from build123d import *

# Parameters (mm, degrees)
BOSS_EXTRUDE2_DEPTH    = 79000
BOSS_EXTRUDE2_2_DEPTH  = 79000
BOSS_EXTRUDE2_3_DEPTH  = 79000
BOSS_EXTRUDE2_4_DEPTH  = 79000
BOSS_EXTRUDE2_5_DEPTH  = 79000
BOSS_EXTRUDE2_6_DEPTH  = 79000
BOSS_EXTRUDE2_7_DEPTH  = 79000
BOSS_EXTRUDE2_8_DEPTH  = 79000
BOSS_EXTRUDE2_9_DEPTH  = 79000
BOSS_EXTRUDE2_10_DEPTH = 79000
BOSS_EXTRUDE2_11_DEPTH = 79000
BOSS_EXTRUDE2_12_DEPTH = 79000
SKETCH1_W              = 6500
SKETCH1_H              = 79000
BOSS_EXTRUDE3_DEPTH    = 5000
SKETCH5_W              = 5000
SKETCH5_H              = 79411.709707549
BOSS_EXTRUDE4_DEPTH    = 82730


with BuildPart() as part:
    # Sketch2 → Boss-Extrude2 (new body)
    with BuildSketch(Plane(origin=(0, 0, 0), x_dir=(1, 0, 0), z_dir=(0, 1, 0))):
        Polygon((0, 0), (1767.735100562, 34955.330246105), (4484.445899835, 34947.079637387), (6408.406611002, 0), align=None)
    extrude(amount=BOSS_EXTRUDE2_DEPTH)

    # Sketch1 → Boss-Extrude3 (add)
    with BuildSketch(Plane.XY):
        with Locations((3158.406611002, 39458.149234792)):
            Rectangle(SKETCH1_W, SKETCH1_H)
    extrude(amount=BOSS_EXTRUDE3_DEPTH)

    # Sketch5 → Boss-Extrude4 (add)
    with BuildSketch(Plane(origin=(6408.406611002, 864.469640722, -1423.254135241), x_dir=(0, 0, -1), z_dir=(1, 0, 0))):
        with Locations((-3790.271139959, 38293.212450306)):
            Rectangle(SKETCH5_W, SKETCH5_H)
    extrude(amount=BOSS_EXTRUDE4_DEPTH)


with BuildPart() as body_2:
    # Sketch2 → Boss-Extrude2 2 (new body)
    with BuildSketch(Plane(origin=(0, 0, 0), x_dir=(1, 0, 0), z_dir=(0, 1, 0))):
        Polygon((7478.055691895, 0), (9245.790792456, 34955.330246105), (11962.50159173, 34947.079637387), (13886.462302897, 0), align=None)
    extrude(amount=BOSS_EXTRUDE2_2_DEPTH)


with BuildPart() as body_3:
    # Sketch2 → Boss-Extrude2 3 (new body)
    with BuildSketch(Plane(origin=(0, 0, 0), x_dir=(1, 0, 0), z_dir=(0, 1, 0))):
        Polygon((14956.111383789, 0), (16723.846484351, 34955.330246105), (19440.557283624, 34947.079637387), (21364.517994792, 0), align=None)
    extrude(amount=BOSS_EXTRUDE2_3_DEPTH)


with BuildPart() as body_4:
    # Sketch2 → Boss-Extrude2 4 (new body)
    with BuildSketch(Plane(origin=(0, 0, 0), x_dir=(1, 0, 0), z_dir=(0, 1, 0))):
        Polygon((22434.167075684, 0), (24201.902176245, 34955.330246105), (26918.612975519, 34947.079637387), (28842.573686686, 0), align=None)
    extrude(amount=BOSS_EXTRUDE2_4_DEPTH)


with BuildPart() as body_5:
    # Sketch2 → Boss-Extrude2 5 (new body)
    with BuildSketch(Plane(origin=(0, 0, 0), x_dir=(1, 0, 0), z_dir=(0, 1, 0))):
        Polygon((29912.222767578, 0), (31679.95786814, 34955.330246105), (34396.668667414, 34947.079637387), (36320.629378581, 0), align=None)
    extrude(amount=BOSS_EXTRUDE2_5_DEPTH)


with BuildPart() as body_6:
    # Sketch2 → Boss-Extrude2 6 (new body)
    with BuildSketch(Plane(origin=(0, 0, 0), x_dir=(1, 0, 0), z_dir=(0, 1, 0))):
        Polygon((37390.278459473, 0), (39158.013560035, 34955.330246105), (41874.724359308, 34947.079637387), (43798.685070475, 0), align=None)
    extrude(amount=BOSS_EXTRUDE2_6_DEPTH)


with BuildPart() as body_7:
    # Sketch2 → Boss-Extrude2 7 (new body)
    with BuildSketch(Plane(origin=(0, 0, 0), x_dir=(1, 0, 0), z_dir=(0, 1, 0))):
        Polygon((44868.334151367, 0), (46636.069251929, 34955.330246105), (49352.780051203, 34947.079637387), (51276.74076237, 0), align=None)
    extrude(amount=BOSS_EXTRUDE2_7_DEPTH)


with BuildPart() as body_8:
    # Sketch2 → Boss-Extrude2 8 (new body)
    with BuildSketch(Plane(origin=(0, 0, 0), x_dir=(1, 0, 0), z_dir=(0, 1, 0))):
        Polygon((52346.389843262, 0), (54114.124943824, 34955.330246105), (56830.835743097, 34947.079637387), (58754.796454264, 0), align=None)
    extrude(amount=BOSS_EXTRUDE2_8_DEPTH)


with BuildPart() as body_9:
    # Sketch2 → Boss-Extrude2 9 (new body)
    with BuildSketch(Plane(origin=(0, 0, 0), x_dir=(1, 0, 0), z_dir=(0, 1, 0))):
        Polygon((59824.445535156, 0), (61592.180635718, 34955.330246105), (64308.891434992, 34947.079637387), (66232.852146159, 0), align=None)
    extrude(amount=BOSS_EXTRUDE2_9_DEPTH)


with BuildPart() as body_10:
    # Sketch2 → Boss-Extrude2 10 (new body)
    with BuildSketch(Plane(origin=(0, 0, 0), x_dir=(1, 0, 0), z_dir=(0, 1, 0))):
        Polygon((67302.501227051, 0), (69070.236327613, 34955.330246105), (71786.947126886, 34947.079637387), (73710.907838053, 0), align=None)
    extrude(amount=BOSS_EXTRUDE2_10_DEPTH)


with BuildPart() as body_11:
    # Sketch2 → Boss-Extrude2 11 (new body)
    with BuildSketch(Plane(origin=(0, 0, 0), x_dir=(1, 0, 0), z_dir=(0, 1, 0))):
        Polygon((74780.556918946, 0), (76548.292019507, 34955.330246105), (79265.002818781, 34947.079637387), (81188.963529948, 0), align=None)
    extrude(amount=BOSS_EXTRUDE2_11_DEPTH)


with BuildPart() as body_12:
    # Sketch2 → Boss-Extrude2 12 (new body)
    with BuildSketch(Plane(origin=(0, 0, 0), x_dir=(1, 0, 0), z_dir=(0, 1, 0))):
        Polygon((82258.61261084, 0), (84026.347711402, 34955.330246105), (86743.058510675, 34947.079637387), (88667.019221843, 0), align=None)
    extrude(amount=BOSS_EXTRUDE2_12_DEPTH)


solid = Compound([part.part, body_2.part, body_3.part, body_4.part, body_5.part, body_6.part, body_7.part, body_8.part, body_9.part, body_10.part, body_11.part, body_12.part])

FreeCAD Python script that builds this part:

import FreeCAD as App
import Part
import Sketcher

doc = App.newDocument("Part")
body = doc.addObject("PartDesign::Body", "Body")

sketch1 = body.newObject("Sketcher::SketchObject", "Sketch")
sketch1.AttachmentSupport = (doc.getObject("XZ_Plane"), [""])
sketch1.MapMode = "FlatFace"
sketch1.addGeometry([
    Part.LineSegment(App.Vector(1768, -34955, 0), App.Vector(0, 0, 0)),
    Part.LineSegment(App.Vector(0, 0, 0), App.Vector(6408, 0, 0)),
    Part.LineSegment(App.Vector(6408, 0, 0), App.Vector(4484, -34947, 0)),
    Part.LineSegment(App.Vector(4484, -34947, 0), App.Vector(1768, -34955, 0)),
], False)
sketch1.addConstraint([
    Sketcher.Constraint("Coincident", 0, 2, 1, 1),
    Sketcher.Constraint("Coincident", 1, 2, 2, 1),
    Sketcher.Constraint("Coincident", 2, 2, 3, 1),
    Sketcher.Constraint("Coincident", 3, 2, 0, 1),
    Sketcher.Constraint("Horizontal", 1),
    Sketcher.Constraint("Coincident", 0, 2, -1, 1),
    Sketcher.Constraint("Equal", 0, 2),
    Sketcher.Constraint("Distance", 0, 35000.0),
    Sketcher.Constraint("DistanceX", 1, 1, 1, 2, 6408.406611),
    Sketcher.Constraint("DistanceX", -1, 1, 2, 2, 4484.4459),
    Sketcher.Constraint("DistanceX", -1, 1, 3, 2, 1767.735101),
])
pad1 = body.newObject("PartDesign::Pad", "Pad")
pad1.Profile = sketch1
pad1.Length = 79000
pad1.Reversed = True

sketch2 = body.newObject("Sketcher::SketchObject", "Sketch001")
sketch2.AttachmentSupport = (doc.getObject("XY_Plane"), [""])
sketch2.MapMode = "FlatFace"
sketch2.addGeometry([
    Part.LineSegment(App.Vector(-92, 78958, 0), App.Vector(-92, -42, 0)),
    Part.LineSegment(App.Vector(-92, -42, 0), App.Vector(6408, -42, 0)),
    Part.LineSegment(App.Vector(6408, -42, 0), App.Vector(6408, 78958, 0)),
    Part.LineSegment(App.Vector(6408, 78958, 0), App.Vector(-92, 78958, 0)),
], False)
sketch2.addConstraint([
    Sketcher.Constraint("Coincident", 0, 2, 1, 1),
    Sketcher.Constraint("Coincident", 1, 2, 2, 1),
    Sketcher.Constraint("Coincident", 2, 2, 3, 1),
    Sketcher.Constraint("Coincident", 3, 2, 0, 1),
    Sketcher.Constraint("Vertical", 0),
    Sketcher.Constraint("Horizontal", 1),
    Sketcher.Constraint("Vertical", 2),
    Sketcher.Constraint("Horizontal", 3),
    Sketcher.Constraint("DistanceX", 1, 1, 1, 2, 6500.0),
    Sketcher.Constraint("DistanceY", 0, 2, 0, 1, 79000.0),
    Sketcher.Constraint("DistanceX", 0, 2, -1, 1, 91.593389),
    Sketcher.Constraint("DistanceY", 0, 2, -1, 1, 41.850765),
])
pad2 = body.newObject("PartDesign::Pad", "Pad001")
pad2.Profile = sketch2
pad2.Length = 5000

sketch3 = body.newObject("Sketcher::SketchObject", "Sketch002")
sketch3.AttachmentSupport = (doc.getObject("YZ_Plane"), [""])
sketch3.MapMode = "FlatFace"
sketch3.AttachmentOffset = App.Placement(App.Vector(0, 0, 6408.406611), App.Rotation())
sketch3.addGeometry([
    Part.LineSegment(App.Vector(78864, 4867, 0), App.Vector(-548, 4867, 0)),
    Part.LineSegment(App.Vector(-548, 4867, 0), App.Vector(-548, -133, 0)),
    Part.LineSegment(App.Vector(-548, -133, 0), App.Vector(78864, -133, 0)),
    Part.LineSegment(App.Vector(78864, -133, 0), App.Vector(78864, 4867, 0)),
], False)
sketch3.addConstraint([
    Sketcher.Constraint("Coincident", 0, 2, 1, 1),
    Sketcher.Constraint("Coincident", 1, 2, 2, 1),
    Sketcher.Constraint("Coincident", 2, 2, 3, 1),
    Sketcher.Constraint("Coincident", 3, 2, 0, 1),
    Sketcher.Constraint("Horizontal", 0),
    Sketcher.Constraint("Vertical", 1),
    Sketcher.Constraint("Horizontal", 2),
    Sketcher.Constraint("Vertical", 3),
    Sketcher.Constraint("DistanceY", 1, 2, 1, 1, 5000.0),
    Sketcher.Constraint("DistanceX", 0, 2, 0, 1, 79411.709708),
    Sketcher.Constraint("DistanceX", 0, 2, -1, 1, 548.172763),
    Sketcher.Constraint("DistanceY", -1, 1, 0, 2, 4867.017005),
])
pad3 = body.newObject("PartDesign::Pad", "Pad002")
pad3.Profile = sketch3
pad3.Length = 82730
body2 = doc.addObject("PartDesign::Body", "Body001")

sketch4 = body2.newObject("Sketcher::SketchObject", "Sketch003")
sketch4.AttachmentSupport = (doc.getObject("XZ_Plane001"), [""])
sketch4.MapMode = "FlatFace"
sketch4.addGeometry([
    Part.LineSegment(App.Vector(9246, -34955, 0), App.Vector(7478, 0, 0)),
    Part.LineSegment(App.Vector(7478, 0, 0), App.Vector(13886, 0, 0)),
    Part.LineSegment(App.Vector(13886, 0, 0), App.Vector(11963, -34947, 0)),
    Part.LineSegment(App.Vector(11963, -34947, 0), App.Vector(9246, -34955, 0)),
], False)
sketch4.addConstraint([
    Sketcher.Constraint("Coincident", 0, 2, 1, 1),
    Sketcher.Constraint("Coincident", 1, 2, 2, 1),
    Sketcher.Constraint("Coincident", 2, 2, 3, 1),
    Sketcher.Constraint("Coincident", 3, 2, 0, 1),
    Sketcher.Constraint("Horizontal", 1),
    Sketcher.Constraint("PointOnObject", 0, 2, -1),
    Sketcher.Constraint("Equal", 0, 2),
    Sketcher.Constraint("Distance", 0, 35000.0),
    Sketcher.Constraint("DistanceX", 1, 1, 1, 2, 6408.406611),
    Sketcher.Constraint("DistanceX", 0, 2, 2, 2, 4484.4459),
    Sketcher.Constraint("DistanceX", 3, 2, 2, 2, 2716.710799),
    Sketcher.Constraint("DistanceX", -1, 1, 0, 2, 7478.055692),
])
pad4 = body2.newObject("PartDesign::Pad", "Pad003")
pad4.Profile = sketch4
pad4.Length = 79000
pad4.Reversed = True
body3 = doc.addObject("PartDesign::Body", "Body002")

sketch5 = body3.newObject("Sketcher::SketchObject", "Sketch004")
sketch5.AttachmentSupport = (doc.getObject("XZ_Plane002"), [""])
sketch5.MapMode = "FlatFace"
sketch5.addGeometry([
    Part.LineSegment(App.Vector(16724, -34955, 0), App.Vector(14956, 0, 0)),
    Part.LineSegment(App.Vector(14956, 0, 0), App.Vector(21365, 0, 0)),
    Part.LineSegment(App.Vector(21365, 0, 0), App.Vector(19441, -34947, 0)),
    Part.LineSegment(App.Vector(19441, -34947, 0), App.Vector(16724, -34955, 0)),
], False)
sketch5.addConstraint([
    Sketcher.Constraint("Coincident", 0, 2, 1, 1),
    Sketcher.Constraint("Coincident", 1, 2, 2, 1),
    Sketcher.Constraint("Coincident", 2, 2, 3, 1),
    Sketcher.Constraint("Coincident", 3, 2, 0, 1),
    Sketcher.Constraint("Horizontal", 1),
    Sketcher.Constraint("PointOnObject", 0, 2, -1),
    Sketcher.Constraint("Equal", 0, 2),
    Sketcher.Constraint("Distance", 0, 35000.0),
    Sketcher.Constraint("DistanceX", 1, 1, 1, 2, 6408.406611),
    Sketcher.Constraint("DistanceX", 0, 2, 2, 2, 4484.4459),
    Sketcher.Constraint("DistanceX", 3, 2, 2, 2, 2716.710799),
    Sketcher.Constraint("DistanceX", -1, 1, 0, 2, 14956.111384),
])
pad5 = body3.newObject("PartDesign::Pad", "Pad004")
pad5.Profile = sketch5
pad5.Length = 79000
pad5.Reversed = True
body4 = doc.addObject("PartDesign::Body", "Body003")

sketch6 = body4.newObject("Sketcher::SketchObject", "Sketch005")
sketch6.AttachmentSupport = (doc.getObject("XZ_Plane003"), [""])
sketch6.MapMode = "FlatFace"
sketch6.addGeometry([
    Part.LineSegment(App.Vector(24202, -34955, 0), App.Vector(22434, 0, 0)),
    Part.LineSegment(App.Vector(22434, 0, 0), App.Vector(28843, 0, 0)),
    Part.LineSegment(App.Vector(28843, 0, 0), App.Vector(26919, -34947, 0)),
    Part.LineSegment(App.Vector(26919, -34947, 0), App.Vector(24202, -34955, 0)),
], False)
sketch6.addConstraint([
    Sketcher.Constraint("Coincident", 0, 2, 1, 1),
    Sketcher.Constraint("Coincident", 1, 2, 2, 1),
    Sketcher.Constraint("Coincident", 2, 2, 3, 1),
    Sketcher.Constraint("Coincident", 3, 2, 0, 1),
    Sketcher.Constraint("Horizontal", 1),
    Sketcher.Constraint("PointOnObject", 0, 2, -1),
    Sketcher.Constraint("Equal", 0, 2),
    Sketcher.Constraint("Distance", 0, 35000.0),
    Sketcher.Constraint("DistanceX", 1, 1, 1, 2, 6408.406611),
    Sketcher.Constraint("DistanceX", 0, 2, 2, 2, 4484.4459),
    Sketcher.Constraint("DistanceX", 3, 2, 2, 2, 2716.710799),
    Sketcher.Constraint("DistanceX", -1, 1, 0, 2, 22434.167076),
])
pad6 = body4.newObject("PartDesign::Pad", "Pad005")
pad6.Profile = sketch6
pad6.Length = 79000
pad6.Reversed = True
body5 = doc.addObject("PartDesign::Body", "Body004")

sketch7 = body5.newObject("Sketcher::SketchObject", "Sketch006")
sketch7.AttachmentSupport = (doc.getObject("XZ_Plane004"), [""])
sketch7.MapMode = "FlatFace"
sketch7.addGeometry([
    Part.LineSegment(App.Vector(31680, -34955, 0), App.Vector(29912, 0, 0)),
    Part.LineSegment(App.Vector(29912, 0, 0), App.Vector(36321, 0, 0)),
    Part.LineSegment(App.Vector(36321, 0, 0), App.Vector(34397, -34947, 0)),
    Part.LineSegment(App.Vector(34397, -34947, 0), App.Vector(31680, -34955, 0)),
], False)
sketch7.addConstraint([
    Sketcher.Constraint("Coincident", 0, 2, 1, 1),
    Sketcher.Constraint("Coincident", 1, 2, 2, 1),
    Sketcher.Constraint("Coincident", 2, 2, 3, 1),
    Sketcher.Constraint("Coincident", 3, 2, 0, 1),
    Sketcher.Constraint("Horizontal", 1),
    Sketcher.Constraint("PointOnObject", 0, 2, -1),
    Sketcher.Constraint("Equal", 0, 2),
    Sketcher.Constraint("Distance", 0, 35000.0),
    Sketcher.Constraint("DistanceX", 1, 1, 1, 2, 6408.406611),
    Sketcher.Constraint("DistanceX", 0, 2, 2, 2, 4484.4459),
    Sketcher.Constraint("DistanceX", 3, 2, 2, 2, 2716.710799),
    Sketcher.Constraint("DistanceX", -1, 1, 1, 2, 36320.629379),
])
pad7 = body5.newObject("PartDesign::Pad", "Pad006")
pad7.Profile = sketch7
pad7.Length = 79000
pad7.Reversed = True
body6 = doc.addObject("PartDesign::Body", "Body005")

sketch8 = body6.newObject("Sketcher::SketchObject", "Sketch007")
sketch8.AttachmentSupport = (doc.getObject("XZ_Plane005"), [""])
sketch8.MapMode = "FlatFace"
sketch8.addGeometry([
    Part.LineSegment(App.Vector(39158, -34955, 0), App.Vector(37390, 0, 0)),
    Part.LineSegment(App.Vector(37390, 0, 0), App.Vector(43799, 0, 0)),
    Part.LineSegment(App.Vector(43799, 0, 0), App.Vector(41875, -34947, 0)),
    Part.LineSegment(App.Vector(41875, -34947, 0), App.Vector(39158, -34955, 0)),
], False)
sketch8.addConstraint([
    Sketcher.Constraint("Coincident", 0, 2, 1, 1),
    Sketcher.Constraint("Coincident", 1, 2, 2, 1),
    Sketcher.Constraint("Coincident", 2, 2, 3, 1),
    Sketcher.Constraint("Coincident", 3, 2, 0, 1),
    Sketcher.Constraint("Horizontal", 1),
    Sketcher.Constraint("PointOnObject", 0, 2, -1),
    Sketcher.Constraint("Equal", 0, 2),
    Sketcher.Constraint("Distance", 0, 35000.0),
    Sketcher.Constraint("DistanceX", 1, 1, 1, 2, 6408.406611),
    Sketcher.Constraint("DistanceX", 0, 2, 2, 2, 4484.4459),
    Sketcher.Constraint("DistanceX", 3, 2, 2, 2, 2716.710799),
    Sketcher.Constraint("DistanceX", -1, 1, 0, 2, 37390.278459),
])
pad8 = body6.newObject("PartDesign::Pad", "Pad007")
pad8.Profile = sketch8
pad8.Length = 79000
pad8.Reversed = True
body7 = doc.addObject("PartDesign::Body", "Body006")

sketch9 = body7.newObject("Sketcher::SketchObject", "Sketch008")
sketch9.AttachmentSupport = (doc.getObject("XZ_Plane006"), [""])
sketch9.MapMode = "FlatFace"
sketch9.addGeometry([
    Part.LineSegment(App.Vector(46636, -34955, 0), App.Vector(44868, 0, 0)),
    Part.LineSegment(App.Vector(44868, 0, 0), App.Vector(51277, 0, 0)),
    Part.LineSegment(App.Vector(51277, 0, 0), App.Vector(49353, -34947, 0)),
    Part.LineSegment(App.Vector(49353, -34947, 0), App.Vector(46636, -34955, 0)),
], False)
sketch9.addConstraint([
    Sketcher.Constraint("Coincident", 0, 2, 1, 1),
    Sketcher.Constraint("Coincident", 1, 2, 2, 1),
    Sketcher.Constraint("Coincident", 2, 2, 3, 1),
    Sketcher.Constraint("Coincident", 3, 2, 0, 1),
    Sketcher.Constraint("Horizontal", 1),
    Sketcher.Constraint("PointOnObject", 0, 2, -1),
    Sketcher.Constraint("Equal", 0, 2),
    Sketcher.Constraint("Distance", 0, 35000.0),
    Sketcher.Constraint("DistanceX", 1, 1, 1, 2, 6408.406611),
    Sketcher.Constraint("DistanceX", 0, 2, 2, 2, 4484.4459),
    Sketcher.Constraint("DistanceX", 3, 2, 2, 2, 2716.710799),
    Sketcher.Constraint("DistanceX", -1, 1, 0, 2, 44868.334151),
])
pad9 = body7.newObject("PartDesign::Pad", "Pad008")
pad9.Profile = sketch9
pad9.Length = 79000
pad9.Reversed = True
body8 = doc.addObject("PartDesign::Body", "Body007")

sketch10 = body8.newObject("Sketcher::SketchObject", "Sketch009")
sketch10.AttachmentSupport = (doc.getObject("XZ_Plane007"), [""])
sketch10.MapMode = "FlatFace"
sketch10.addGeometry([
    Part.LineSegment(App.Vector(54114, -34955, 0), App.Vector(52346, 0, 0)),
    Part.LineSegment(App.Vector(52346, 0, 0), App.Vector(58755, 0, 0)),
    Part.LineSegment(App.Vector(58755, 0, 0), App.Vector(56831, -34947, 0)),
    Part.LineSegment(App.Vector(56831, -34947, 0), App.Vector(54114, -34955, 0)),
], False)
sketch10.addConstraint([
    Sketcher.Constraint("Coincident", 0, 2, 1, 1),
    Sketcher.Constraint("Coincident", 1, 2, 2, 1),
    Sketcher.Constraint("Coincident", 2, 2, 3, 1),
    Sketcher.Constraint("Coincident", 3, 2, 0, 1),
    Sketcher.Constraint("Horizontal", 1),
    Sketcher.Constraint("PointOnObject", 0, 2, -1),
    Sketcher.Constraint("Equal", 0, 2),
    Sketcher.Constraint("Distance", 0, 35000.0),
    Sketcher.Constraint("DistanceX", 1, 1, 1, 2, 6408.406611),
    Sketcher.Constraint("DistanceX", 0, 2, 2, 2, 4484.4459),
    Sketcher.Constraint("DistanceX", 3, 2, 2, 2, 2716.710799),
    Sketcher.Constraint("DistanceX", -1, 1, 0, 2, 52346.389843),
])
pad10 = body8.newObject("PartDesign::Pad", "Pad009")
pad10.Profile = sketch10
pad10.Length = 79000
pad10.Reversed = True
body9 = doc.addObject("PartDesign::Body", "Body008")

sketch11 = body9.newObject("Sketcher::SketchObject", "Sketch010")
sketch11.AttachmentSupport = (doc.getObject("XZ_Plane008"), [""])
sketch11.MapMode = "FlatFace"
sketch11.addGeometry([
    Part.LineSegment(App.Vector(61592, -34955, 0), App.Vector(59824, 0, 0)),
    Part.LineSegment(App.Vector(59824, 0, 0), App.Vector(66233, 0, 0)),
    Part.LineSegment(App.Vector(66233, 0, 0), App.Vector(64309, -34947, 0)),
    Part.LineSegment(App.Vector(64309, -34947, 0), App.Vector(61592, -34955, 0)),
], False)
sketch11.addConstraint([
    Sketcher.Constraint("Coincident", 0, 2, 1, 1),
    Sketcher.Constraint("Coincident", 1, 2, 2, 1),
    Sketcher.Constraint("Coincident", 2, 2, 3, 1),
    Sketcher.Constraint("Coincident", 3, 2, 0, 1),
    Sketcher.Constraint("Horizontal", 1),
    Sketcher.Constraint("PointOnObject", 0, 2, -1),
    Sketcher.Constraint("Equal", 0, 2),
    Sketcher.Constraint("Distance", 0, 35000.0),
    Sketcher.Constraint("DistanceX", 1, 1, 1, 2, 6408.406611),
    Sketcher.Constraint("DistanceX", 0, 2, 2, 2, 4484.4459),
    Sketcher.Constraint("DistanceX", 3, 2, 2, 2, 2716.710799),
    Sketcher.Constraint("DistanceX", -1, 1, 0, 2, 59824.445535),
])
pad11 = body9.newObject("PartDesign::Pad", "Pad010")
pad11.Profile = sketch11
pad11.Length = 79000
pad11.Reversed = True
body10 = doc.addObject("PartDesign::Body", "Body009")

sketch12 = body10.newObject("Sketcher::SketchObject", "Sketch011")
sketch12.AttachmentSupport = (doc.getObject("XZ_Plane009"), [""])
sketch12.MapMode = "FlatFace"
sketch12.addGeometry([
    Part.LineSegment(App.Vector(69070, -34955, 0), App.Vector(67303, 0, 0)),
    Part.LineSegment(App.Vector(67303, 0, 0), App.Vector(73711, 0, 0)),
    Part.LineSegment(App.Vector(73711, 0, 0), App.Vector(71787, -34947, 0)),
    Part.LineSegment(App.Vector(71787, -34947, 0), App.Vector(69070, -34955, 0)),
], False)
sketch12.addConstraint([
    Sketcher.Constraint("Coincident", 0, 2, 1, 1),
    Sketcher.Constraint("Coincident", 1, 2, 2, 1),
    Sketcher.Constraint("Coincident", 2, 2, 3, 1),
    Sketcher.Constraint("Coincident", 3, 2, 0, 1),
    Sketcher.Constraint("Horizontal", 1),
    Sketcher.Constraint("PointOnObject", 0, 2, -1),
    Sketcher.Constraint("Equal", 0, 2),
    Sketcher.Constraint("Distance", 0, 35000.0),
    Sketcher.Constraint("DistanceX", 1, 1, 1, 2, 6408.406611),
    Sketcher.Constraint("DistanceX", 0, 2, 2, 2, 4484.4459),
    Sketcher.Constraint("DistanceX", 3, 2, 2, 2, 2716.710799),
    Sketcher.Constraint("DistanceX", -1, 1, 1, 2, 73710.907838),
])
pad12 = body10.newObject("PartDesign::Pad", "Pad011")
pad12.Profile = sketch12
pad12.Length = 79000
pad12.Reversed = True
body11 = doc.addObject("PartDesign::Body", "Body010")

sketch13 = body11.newObject("Sketcher::SketchObject", "Sketch012")
sketch13.AttachmentSupport = (doc.getObject("XZ_Plane010"), [""])
sketch13.MapMode = "FlatFace"
sketch13.addGeometry([
    Part.LineSegment(App.Vector(76548, -34955, 0), App.Vector(74781, 0, 0)),
    Part.LineSegment(App.Vector(74781, 0, 0), App.Vector(81189, 0, 0)),
    Part.LineSegment(App.Vector(81189, 0, 0), App.Vector(79265, -34947, 0)),
    Part.LineSegment(App.Vector(79265, -34947, 0), App.Vector(76548, -34955, 0)),
], False)
sketch13.addConstraint([
    Sketcher.Constraint("Coincident", 0, 2, 1, 1),
    Sketcher.Constraint("Coincident", 1, 2, 2, 1),
    Sketcher.Constraint("Coincident", 2, 2, 3, 1),
    Sketcher.Constraint("Coincident", 3, 2, 0, 1),
    Sketcher.Constraint("Horizontal", 1),
    Sketcher.Constraint("PointOnObject", 0, 2, -1),
    Sketcher.Constraint("Equal", 0, 2),
    Sketcher.Constraint("Distance", 0, 35000.0),
    Sketcher.Constraint("DistanceX", 1, 1, 1, 2, 6408.406611),
    Sketcher.Constraint("DistanceX", 0, 2, 2, 2, 4484.4459),
    Sketcher.Constraint("DistanceX", 3, 2, 2, 2, 2716.710799),
    Sketcher.Constraint("DistanceX", -1, 1, 0, 2, 74780.556919),
])
pad13 = body11.newObject("PartDesign::Pad", "Pad012")
pad13.Profile = sketch13
pad13.Length = 79000
pad13.Reversed = True
body12 = doc.addObject("PartDesign::Body", "Body011")

sketch14 = body12.newObject("Sketcher::SketchObject", "Sketch013")
sketch14.AttachmentSupport = (doc.getObject("XZ_Plane011"), [""])
sketch14.MapMode = "FlatFace"
sketch14.addGeometry([
    Part.LineSegment(App.Vector(84026, -34955, 0), App.Vector(82259, 0, 0)),
    Part.LineSegment(App.Vector(82259, 0, 0), App.Vector(88667, 0, 0)),
    Part.LineSegment(App.Vector(88667, 0, 0), App.Vector(86743, -34947, 0)),
    Part.LineSegment(App.Vector(86743, -34947, 0), App.Vector(84026, -34955, 0)),
], False)
sketch14.addConstraint([
    Sketcher.Constraint("Coincident", 0, 2, 1, 1),
    Sketcher.Constraint("Coincident", 1, 2, 2, 1),
    Sketcher.Constraint("Coincident", 2, 2, 3, 1),
    Sketcher.Constraint("Coincident", 3, 2, 0, 1),
    Sketcher.Constraint("Horizontal", 1),
    Sketcher.Constraint("PointOnObject", 0, 2, -1),
    Sketcher.Constraint("Equal", 0, 2),
    Sketcher.Constraint("Distance", 0, 35000.0),
    Sketcher.Constraint("DistanceX", 1, 1, 1, 2, 6408.406611),
    Sketcher.Constraint("DistanceX", 0, 2, 2, 2, 4484.4459),
    Sketcher.Constraint("DistanceX", 3, 2, 2, 2, 2716.710799),
    Sketcher.Constraint("DistanceX", -1, 1, 0, 2, 82258.612611),
])
pad14 = body12.newObject("PartDesign::Pad", "Pad013")
pad14.Profile = sketch14
pad14.Length = 79000
pad14.Reversed = True

doc.recompute()
